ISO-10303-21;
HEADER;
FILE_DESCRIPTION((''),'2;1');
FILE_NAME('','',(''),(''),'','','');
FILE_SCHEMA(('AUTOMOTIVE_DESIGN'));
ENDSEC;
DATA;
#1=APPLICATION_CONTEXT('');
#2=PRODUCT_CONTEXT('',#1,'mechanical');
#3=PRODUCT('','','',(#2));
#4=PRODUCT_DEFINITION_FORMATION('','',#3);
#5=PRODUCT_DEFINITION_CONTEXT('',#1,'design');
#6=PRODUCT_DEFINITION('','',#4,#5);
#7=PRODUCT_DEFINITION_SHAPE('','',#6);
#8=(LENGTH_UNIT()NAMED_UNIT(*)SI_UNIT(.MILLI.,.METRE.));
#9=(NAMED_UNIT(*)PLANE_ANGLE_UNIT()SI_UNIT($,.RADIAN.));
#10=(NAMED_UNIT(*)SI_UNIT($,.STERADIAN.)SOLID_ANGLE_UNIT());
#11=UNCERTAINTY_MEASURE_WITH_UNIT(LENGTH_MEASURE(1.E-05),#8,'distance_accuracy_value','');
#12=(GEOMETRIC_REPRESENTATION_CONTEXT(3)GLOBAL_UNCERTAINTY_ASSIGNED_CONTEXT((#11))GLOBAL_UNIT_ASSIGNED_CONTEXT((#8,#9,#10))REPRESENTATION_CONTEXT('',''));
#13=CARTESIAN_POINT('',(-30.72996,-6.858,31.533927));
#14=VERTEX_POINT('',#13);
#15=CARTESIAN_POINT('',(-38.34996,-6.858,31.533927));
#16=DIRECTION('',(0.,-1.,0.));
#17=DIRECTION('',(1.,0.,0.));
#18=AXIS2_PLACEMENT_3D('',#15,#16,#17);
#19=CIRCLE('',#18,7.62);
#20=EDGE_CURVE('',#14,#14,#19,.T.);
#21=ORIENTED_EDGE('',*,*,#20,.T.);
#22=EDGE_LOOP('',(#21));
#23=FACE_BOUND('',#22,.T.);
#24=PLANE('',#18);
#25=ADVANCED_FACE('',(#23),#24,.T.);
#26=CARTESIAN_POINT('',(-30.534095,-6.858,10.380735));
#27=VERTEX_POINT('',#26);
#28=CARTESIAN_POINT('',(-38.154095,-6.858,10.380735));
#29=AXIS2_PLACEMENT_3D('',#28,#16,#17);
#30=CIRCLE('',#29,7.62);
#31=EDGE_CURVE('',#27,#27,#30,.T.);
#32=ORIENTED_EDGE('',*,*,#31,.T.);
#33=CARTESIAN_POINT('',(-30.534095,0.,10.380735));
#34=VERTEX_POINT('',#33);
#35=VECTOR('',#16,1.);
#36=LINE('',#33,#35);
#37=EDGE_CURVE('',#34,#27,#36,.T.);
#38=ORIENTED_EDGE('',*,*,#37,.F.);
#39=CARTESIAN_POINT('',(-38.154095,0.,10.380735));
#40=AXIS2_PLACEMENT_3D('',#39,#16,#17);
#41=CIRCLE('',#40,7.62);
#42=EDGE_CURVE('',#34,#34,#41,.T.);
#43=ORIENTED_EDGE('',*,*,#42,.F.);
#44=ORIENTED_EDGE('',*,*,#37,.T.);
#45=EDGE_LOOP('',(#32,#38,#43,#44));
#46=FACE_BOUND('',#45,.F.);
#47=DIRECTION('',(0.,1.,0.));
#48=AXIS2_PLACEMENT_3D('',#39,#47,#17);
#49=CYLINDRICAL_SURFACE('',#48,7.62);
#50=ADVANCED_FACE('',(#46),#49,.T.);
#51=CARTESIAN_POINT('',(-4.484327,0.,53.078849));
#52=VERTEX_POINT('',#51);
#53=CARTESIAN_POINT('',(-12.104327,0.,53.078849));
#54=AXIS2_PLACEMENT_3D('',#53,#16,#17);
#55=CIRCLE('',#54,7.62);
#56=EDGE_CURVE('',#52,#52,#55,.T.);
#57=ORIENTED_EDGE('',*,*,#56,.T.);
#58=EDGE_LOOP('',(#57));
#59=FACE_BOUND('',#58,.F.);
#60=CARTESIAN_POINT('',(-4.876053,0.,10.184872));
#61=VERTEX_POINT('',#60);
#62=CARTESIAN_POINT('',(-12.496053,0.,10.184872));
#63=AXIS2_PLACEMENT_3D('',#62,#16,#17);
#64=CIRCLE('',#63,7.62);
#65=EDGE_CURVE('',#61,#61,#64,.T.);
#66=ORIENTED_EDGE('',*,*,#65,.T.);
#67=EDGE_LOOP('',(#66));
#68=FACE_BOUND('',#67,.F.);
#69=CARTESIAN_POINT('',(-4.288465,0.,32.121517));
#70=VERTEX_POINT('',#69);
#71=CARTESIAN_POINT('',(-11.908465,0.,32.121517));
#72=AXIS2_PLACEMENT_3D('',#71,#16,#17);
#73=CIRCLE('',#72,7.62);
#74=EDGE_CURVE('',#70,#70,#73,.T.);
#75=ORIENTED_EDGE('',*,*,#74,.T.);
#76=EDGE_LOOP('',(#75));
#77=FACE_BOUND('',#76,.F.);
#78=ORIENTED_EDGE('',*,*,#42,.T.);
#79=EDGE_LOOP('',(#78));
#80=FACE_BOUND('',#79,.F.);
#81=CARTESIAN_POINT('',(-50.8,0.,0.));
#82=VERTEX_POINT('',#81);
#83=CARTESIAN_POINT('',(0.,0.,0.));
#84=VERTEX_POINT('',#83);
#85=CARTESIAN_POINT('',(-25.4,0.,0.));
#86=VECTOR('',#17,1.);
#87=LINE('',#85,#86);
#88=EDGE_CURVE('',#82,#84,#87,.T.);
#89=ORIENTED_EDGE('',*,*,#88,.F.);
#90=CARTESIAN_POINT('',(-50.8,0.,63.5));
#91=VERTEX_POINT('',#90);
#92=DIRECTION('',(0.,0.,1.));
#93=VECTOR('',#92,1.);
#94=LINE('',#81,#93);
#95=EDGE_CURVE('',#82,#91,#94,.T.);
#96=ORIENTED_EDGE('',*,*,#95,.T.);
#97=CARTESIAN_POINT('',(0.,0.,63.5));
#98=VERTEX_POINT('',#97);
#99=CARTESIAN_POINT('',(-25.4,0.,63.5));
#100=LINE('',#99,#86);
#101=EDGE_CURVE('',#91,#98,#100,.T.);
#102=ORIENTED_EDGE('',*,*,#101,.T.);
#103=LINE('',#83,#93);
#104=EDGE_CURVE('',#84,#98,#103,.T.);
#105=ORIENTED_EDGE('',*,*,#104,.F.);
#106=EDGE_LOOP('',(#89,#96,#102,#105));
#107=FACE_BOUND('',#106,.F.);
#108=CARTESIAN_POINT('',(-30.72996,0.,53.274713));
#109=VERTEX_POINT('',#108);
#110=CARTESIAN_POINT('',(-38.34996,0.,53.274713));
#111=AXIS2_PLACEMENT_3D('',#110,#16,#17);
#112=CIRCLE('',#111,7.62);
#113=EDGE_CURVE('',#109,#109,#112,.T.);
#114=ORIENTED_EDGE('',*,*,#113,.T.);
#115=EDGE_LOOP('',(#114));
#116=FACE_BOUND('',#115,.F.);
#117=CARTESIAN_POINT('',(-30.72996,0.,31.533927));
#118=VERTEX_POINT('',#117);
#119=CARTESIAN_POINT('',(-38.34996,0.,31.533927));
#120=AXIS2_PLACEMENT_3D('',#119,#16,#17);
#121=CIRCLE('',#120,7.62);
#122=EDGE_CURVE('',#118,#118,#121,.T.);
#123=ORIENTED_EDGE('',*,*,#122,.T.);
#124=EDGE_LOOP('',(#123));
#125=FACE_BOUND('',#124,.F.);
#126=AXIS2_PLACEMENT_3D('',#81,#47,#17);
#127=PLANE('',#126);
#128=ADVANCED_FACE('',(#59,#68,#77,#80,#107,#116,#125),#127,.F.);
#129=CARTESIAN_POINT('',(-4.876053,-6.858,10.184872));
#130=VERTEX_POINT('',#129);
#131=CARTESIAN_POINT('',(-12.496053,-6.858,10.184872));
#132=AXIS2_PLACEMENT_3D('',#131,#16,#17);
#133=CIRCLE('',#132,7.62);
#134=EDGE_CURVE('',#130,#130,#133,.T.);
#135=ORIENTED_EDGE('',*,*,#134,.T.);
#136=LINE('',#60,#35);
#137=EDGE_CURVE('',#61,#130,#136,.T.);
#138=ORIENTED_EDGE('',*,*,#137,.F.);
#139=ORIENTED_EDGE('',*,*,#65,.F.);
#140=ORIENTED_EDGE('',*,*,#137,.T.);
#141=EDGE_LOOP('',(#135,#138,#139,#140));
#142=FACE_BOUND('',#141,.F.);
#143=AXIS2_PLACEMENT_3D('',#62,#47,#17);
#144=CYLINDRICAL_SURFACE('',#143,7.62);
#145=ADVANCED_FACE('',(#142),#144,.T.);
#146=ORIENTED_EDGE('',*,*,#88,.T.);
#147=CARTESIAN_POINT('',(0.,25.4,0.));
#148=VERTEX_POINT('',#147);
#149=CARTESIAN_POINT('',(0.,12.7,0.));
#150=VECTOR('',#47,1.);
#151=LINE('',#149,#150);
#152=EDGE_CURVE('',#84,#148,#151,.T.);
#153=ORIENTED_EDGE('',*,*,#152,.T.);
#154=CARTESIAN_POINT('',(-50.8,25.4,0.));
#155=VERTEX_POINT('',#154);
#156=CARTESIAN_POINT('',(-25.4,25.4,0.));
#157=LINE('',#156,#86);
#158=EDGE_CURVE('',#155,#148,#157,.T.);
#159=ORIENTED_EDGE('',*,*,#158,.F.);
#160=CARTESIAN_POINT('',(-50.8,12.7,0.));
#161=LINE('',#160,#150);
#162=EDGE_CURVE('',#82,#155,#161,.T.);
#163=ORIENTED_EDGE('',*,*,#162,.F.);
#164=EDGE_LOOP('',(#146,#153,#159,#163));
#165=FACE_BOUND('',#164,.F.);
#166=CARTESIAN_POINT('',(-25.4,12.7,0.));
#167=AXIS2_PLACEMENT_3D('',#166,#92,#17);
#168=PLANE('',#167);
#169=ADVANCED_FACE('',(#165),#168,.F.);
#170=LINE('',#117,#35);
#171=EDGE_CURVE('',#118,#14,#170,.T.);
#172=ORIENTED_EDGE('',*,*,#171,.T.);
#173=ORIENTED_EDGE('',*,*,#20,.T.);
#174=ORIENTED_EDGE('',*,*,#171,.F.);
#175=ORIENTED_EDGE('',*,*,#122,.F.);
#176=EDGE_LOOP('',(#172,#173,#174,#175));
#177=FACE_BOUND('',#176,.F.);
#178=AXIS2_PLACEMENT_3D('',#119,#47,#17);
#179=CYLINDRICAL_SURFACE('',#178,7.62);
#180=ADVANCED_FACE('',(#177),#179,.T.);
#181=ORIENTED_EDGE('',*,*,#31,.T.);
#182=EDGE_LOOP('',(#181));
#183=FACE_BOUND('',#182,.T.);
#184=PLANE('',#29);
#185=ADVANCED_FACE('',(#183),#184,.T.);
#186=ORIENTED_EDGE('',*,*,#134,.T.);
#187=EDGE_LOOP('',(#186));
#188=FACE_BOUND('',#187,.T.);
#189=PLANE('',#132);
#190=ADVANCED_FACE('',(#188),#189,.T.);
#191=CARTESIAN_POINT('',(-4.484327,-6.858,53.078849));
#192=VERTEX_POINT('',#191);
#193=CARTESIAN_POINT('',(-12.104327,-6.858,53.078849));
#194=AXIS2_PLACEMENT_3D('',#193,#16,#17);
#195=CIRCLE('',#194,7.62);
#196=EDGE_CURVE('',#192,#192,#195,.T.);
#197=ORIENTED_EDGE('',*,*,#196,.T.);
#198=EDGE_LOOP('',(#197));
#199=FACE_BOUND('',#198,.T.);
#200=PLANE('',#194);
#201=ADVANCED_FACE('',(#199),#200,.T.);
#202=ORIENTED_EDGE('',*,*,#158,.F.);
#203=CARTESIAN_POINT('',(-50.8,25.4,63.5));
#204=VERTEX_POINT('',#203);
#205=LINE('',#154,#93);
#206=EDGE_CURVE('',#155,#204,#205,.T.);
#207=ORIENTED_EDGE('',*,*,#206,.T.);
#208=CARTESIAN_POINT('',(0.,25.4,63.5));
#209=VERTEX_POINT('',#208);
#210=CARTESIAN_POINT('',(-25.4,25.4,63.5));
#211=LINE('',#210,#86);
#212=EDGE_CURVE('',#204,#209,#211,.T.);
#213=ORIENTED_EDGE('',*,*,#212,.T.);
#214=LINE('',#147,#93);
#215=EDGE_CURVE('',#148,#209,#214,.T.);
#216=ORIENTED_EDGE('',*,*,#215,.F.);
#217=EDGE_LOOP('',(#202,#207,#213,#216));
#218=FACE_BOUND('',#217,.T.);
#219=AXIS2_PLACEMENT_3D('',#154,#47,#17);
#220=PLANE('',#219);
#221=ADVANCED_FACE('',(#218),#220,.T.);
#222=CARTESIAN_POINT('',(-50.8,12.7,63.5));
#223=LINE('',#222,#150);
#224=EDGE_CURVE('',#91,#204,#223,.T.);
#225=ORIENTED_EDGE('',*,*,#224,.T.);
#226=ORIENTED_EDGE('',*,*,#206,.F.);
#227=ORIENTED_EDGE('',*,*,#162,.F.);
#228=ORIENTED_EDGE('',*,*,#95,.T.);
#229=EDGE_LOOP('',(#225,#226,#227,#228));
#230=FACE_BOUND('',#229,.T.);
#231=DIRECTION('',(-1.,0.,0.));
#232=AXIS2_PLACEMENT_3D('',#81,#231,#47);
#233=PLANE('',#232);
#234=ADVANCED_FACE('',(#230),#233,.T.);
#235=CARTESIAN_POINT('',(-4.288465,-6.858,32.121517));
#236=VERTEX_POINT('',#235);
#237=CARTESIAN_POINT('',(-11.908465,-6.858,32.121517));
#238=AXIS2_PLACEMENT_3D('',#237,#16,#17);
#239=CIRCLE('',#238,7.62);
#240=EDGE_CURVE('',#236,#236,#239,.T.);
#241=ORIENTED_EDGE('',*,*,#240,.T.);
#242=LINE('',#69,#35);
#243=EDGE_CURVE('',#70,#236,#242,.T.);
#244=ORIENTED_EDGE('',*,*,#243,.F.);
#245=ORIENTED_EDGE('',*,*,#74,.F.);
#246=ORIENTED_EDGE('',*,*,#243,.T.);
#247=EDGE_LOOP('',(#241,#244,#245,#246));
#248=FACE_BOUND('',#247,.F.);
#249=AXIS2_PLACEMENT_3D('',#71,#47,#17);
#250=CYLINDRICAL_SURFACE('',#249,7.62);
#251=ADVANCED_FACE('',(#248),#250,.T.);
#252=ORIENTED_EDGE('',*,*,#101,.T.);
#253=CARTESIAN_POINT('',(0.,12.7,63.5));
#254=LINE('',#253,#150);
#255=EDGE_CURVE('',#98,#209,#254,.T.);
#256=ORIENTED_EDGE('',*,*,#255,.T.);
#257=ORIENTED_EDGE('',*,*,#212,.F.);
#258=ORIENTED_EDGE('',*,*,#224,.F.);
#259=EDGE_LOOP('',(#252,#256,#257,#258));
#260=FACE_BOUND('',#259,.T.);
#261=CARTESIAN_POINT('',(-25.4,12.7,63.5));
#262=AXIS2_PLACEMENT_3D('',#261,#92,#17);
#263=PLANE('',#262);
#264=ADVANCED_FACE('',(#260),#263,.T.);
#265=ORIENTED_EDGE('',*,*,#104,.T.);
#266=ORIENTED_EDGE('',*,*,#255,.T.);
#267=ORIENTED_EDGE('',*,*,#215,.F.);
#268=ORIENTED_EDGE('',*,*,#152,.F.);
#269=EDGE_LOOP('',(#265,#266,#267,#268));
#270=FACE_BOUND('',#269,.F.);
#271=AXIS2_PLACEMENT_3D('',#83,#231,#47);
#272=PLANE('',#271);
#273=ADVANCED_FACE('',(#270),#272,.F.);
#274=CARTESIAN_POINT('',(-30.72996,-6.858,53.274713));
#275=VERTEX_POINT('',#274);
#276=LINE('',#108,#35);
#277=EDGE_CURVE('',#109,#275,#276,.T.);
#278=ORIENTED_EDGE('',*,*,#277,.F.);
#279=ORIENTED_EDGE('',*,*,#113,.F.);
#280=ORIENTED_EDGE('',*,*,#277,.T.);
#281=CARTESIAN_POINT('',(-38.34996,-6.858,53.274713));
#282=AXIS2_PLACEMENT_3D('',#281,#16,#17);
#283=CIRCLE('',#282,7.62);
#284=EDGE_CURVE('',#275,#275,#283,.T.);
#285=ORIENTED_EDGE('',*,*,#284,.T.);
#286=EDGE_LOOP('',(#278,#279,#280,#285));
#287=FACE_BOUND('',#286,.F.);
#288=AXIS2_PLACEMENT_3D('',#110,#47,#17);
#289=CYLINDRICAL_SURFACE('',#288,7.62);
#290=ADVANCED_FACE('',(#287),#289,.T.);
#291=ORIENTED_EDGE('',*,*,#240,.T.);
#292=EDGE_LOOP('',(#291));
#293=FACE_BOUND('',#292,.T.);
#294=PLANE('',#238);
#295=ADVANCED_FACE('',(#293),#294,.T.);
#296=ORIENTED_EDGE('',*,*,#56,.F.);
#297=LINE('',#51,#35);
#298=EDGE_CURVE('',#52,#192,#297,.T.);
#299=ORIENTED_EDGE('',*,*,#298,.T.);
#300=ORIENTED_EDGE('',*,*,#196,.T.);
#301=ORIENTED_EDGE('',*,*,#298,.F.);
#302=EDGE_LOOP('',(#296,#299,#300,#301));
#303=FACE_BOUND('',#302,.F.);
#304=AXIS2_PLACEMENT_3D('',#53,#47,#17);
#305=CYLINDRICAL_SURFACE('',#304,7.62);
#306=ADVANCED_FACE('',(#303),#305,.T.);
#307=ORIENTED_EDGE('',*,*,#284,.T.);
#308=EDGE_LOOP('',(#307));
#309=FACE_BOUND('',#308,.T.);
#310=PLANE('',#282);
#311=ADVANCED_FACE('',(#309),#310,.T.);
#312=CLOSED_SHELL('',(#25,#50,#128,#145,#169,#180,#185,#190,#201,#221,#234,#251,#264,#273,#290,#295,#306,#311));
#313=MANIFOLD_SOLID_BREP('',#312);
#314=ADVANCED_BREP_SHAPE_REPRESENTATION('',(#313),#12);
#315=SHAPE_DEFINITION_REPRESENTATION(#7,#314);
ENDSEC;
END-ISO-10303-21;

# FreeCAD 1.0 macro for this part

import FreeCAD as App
import Part
import Sketcher
from FreeCAD import Vector
Q = App.Units.Quantity

doc = App.newDocument("Part")
body = doc.addObject("PartDesign::Body", "Body")

sketch1 = body.newObject("Sketcher::SketchObject", "Sketch")
sketch1.AttachmentSupport = (doc.getObject("XY_Plane"), [""])
sketch1.MapMode = "FlatFace"
sketch1.addGeometry(Part.LineSegment(Vector(-50.8, 25.4, 0), Vector(-50.8, 0, 0)), False)
sketch1.addGeometry(Part.LineSegment(Vector(-50.8, 0, 0), Vector(0, 0, 0)), False)
sketch1.addGeometry(Part.LineSegment(Vector(0, 0, 0), Vector(0, 25.4, 0)), False)
sketch1.addGeometry(Part.LineSegment(Vector(0, 25.4, 0), Vector(-50.8, 25.4, 0)), False)
sketch1.addConstraint(Sketcher.Constraint("Coincident", 0, 2, 1, 1))
sketch1.addConstraint(Sketcher.Constraint("Coincident", 1, 2, 2, 1))
sketch1.addConstraint(Sketcher.Constraint("Coincident", 2, 2, 3, 1))
sketch1.addConstraint(Sketcher.Constraint("Coincident", 3, 2, 0, 1))
sketch1.addConstraint(Sketcher.Constraint("Vertical", 0))
sketch1.addConstraint(Sketcher.Constraint("Horizontal", 1))
sketch1.addConstraint(Sketcher.Constraint("Vertical", 2))
sketch1.addConstraint(Sketcher.Constraint("Horizontal", 3))
sketch1.addConstraint(Sketcher.Constraint("Coincident", 1, 2, -1, 1))
sketch1.addConstraint(Sketcher.Constraint("DistanceX", 1, 1, 1, 2, Q("2 in")))
sketch1.addConstraint(Sketcher.Constraint("DistanceY", 0, 2, 0, 1, Q("1 in")))
pad1 = body.newObject("PartDesign::Pad", "Pad")
pad1.Profile = sketch1
pad1.Length = Q("2.5 in")

sketch2 = body.newObject("Sketcher::SketchObject", "Sketch001")
sketch2.AttachmentSupport = (doc.getObject("XZ_Plane"), [""])
sketch2.MapMode = "FlatFace"
sketch2.addGeometry(Part.Circle(Vector(-12.104327, 53.078849, 0), Vector(0, 0, 1), 7.62), False)
sketch2.addGeometry(Part.Circle(Vector(-38.34996, 53.274713, 0), Vector(0, 0, 1), 7.62), False)
sketch2.addGeometry(Part.Circle(Vector(-38.34996, 31.533927, 0), Vector(0, 0, 1), 7.62), False)
sketch2.addGeometry(Part.Circle(Vector(-11.908465, 32.121517, 0), Vector(0, 0, 1), 7.62), False)
sketch2.addGeometry(Part.Circle(Vector(-38.154095, 10.380735, 0), Vector(0, 0, 1), 7.62), False)
sketch2.addGeometry(Part.Circle(Vector(-12.496053, 10.184872, 0), Vector(0, 0, 1), 7.62), False)
sketch2.addConstraint(Sketcher.Constraint("Equal", 0, 1))
sketch2.addConstraint(Sketcher.Constraint("Equal", 1, 2))
sketch2.addConstraint(Sketcher.Constraint("Equal", 2, 3))
sketch2.addConstraint(Sketcher.Constraint("Equal", 3, 4))
sketch2.addConstraint(Sketcher.Constraint("Equal", 4, 5))
sketch2.addConstraint(Sketcher.Constraint("Vertical", 1, 3, 2, 3))
sketch2.addConstraint(Sketcher.Constraint("Diameter", 0, Q("0.6 in")))
sketch2.addConstraint(Sketcher.Constraint("DistanceY", -1, 1, 0, 3, Q("53.078849 mm")))
sketch2.addConstraint(Sketcher.Constraint("DistanceX", 1, 3, -1, 1, Q("38.34996 mm")))
sketch2.addConstraint(Sketcher.Constraint("DistanceY", -1, 1, 5, 3, Q("10.184872 mm")))
sketch2.addConstraint(Sketcher.Constraint("DistanceX", 0, 3, 3, 3, Q("0.195862 mm")))
sketch2.addConstraint(Sketcher.Constraint("DistanceY", 2, 3, 3, 3, Q("0.58759 mm")))
sketch2.addConstraint(Sketcher.Constraint("DistanceX", 4, 3, 3, 3, Q("26.24563 mm")))
sketch2.addConstraint(Sketcher.Constraint("DistanceY", 4, 3, 1, 3, Q("42.893979 mm")))
sketch2.addConstraint(Sketcher.Constraint("DistanceX", 5, 3, 3, 3, Q("0.587588 mm")))
sketch2.addConstraint(Sketcher.Constraint("DistanceY", 5, 3, 1, 3, Q("43.089841 mm")))
sketch2.addConstraint(Sketcher.Constraint("DistanceX", 0, 3, -1, 1, Q("12.104327 mm")))
sketch2.addConstraint(Sketcher.Constraint("DistanceY", -1, 1, 2, 3, Q("31.533927 mm")))
pad2 = body.newObject("PartDesign::Pad", "Pad001")
pad2.Profile = sketch2
pad2.Length = Q("0.27 in")

doc.recompute()
